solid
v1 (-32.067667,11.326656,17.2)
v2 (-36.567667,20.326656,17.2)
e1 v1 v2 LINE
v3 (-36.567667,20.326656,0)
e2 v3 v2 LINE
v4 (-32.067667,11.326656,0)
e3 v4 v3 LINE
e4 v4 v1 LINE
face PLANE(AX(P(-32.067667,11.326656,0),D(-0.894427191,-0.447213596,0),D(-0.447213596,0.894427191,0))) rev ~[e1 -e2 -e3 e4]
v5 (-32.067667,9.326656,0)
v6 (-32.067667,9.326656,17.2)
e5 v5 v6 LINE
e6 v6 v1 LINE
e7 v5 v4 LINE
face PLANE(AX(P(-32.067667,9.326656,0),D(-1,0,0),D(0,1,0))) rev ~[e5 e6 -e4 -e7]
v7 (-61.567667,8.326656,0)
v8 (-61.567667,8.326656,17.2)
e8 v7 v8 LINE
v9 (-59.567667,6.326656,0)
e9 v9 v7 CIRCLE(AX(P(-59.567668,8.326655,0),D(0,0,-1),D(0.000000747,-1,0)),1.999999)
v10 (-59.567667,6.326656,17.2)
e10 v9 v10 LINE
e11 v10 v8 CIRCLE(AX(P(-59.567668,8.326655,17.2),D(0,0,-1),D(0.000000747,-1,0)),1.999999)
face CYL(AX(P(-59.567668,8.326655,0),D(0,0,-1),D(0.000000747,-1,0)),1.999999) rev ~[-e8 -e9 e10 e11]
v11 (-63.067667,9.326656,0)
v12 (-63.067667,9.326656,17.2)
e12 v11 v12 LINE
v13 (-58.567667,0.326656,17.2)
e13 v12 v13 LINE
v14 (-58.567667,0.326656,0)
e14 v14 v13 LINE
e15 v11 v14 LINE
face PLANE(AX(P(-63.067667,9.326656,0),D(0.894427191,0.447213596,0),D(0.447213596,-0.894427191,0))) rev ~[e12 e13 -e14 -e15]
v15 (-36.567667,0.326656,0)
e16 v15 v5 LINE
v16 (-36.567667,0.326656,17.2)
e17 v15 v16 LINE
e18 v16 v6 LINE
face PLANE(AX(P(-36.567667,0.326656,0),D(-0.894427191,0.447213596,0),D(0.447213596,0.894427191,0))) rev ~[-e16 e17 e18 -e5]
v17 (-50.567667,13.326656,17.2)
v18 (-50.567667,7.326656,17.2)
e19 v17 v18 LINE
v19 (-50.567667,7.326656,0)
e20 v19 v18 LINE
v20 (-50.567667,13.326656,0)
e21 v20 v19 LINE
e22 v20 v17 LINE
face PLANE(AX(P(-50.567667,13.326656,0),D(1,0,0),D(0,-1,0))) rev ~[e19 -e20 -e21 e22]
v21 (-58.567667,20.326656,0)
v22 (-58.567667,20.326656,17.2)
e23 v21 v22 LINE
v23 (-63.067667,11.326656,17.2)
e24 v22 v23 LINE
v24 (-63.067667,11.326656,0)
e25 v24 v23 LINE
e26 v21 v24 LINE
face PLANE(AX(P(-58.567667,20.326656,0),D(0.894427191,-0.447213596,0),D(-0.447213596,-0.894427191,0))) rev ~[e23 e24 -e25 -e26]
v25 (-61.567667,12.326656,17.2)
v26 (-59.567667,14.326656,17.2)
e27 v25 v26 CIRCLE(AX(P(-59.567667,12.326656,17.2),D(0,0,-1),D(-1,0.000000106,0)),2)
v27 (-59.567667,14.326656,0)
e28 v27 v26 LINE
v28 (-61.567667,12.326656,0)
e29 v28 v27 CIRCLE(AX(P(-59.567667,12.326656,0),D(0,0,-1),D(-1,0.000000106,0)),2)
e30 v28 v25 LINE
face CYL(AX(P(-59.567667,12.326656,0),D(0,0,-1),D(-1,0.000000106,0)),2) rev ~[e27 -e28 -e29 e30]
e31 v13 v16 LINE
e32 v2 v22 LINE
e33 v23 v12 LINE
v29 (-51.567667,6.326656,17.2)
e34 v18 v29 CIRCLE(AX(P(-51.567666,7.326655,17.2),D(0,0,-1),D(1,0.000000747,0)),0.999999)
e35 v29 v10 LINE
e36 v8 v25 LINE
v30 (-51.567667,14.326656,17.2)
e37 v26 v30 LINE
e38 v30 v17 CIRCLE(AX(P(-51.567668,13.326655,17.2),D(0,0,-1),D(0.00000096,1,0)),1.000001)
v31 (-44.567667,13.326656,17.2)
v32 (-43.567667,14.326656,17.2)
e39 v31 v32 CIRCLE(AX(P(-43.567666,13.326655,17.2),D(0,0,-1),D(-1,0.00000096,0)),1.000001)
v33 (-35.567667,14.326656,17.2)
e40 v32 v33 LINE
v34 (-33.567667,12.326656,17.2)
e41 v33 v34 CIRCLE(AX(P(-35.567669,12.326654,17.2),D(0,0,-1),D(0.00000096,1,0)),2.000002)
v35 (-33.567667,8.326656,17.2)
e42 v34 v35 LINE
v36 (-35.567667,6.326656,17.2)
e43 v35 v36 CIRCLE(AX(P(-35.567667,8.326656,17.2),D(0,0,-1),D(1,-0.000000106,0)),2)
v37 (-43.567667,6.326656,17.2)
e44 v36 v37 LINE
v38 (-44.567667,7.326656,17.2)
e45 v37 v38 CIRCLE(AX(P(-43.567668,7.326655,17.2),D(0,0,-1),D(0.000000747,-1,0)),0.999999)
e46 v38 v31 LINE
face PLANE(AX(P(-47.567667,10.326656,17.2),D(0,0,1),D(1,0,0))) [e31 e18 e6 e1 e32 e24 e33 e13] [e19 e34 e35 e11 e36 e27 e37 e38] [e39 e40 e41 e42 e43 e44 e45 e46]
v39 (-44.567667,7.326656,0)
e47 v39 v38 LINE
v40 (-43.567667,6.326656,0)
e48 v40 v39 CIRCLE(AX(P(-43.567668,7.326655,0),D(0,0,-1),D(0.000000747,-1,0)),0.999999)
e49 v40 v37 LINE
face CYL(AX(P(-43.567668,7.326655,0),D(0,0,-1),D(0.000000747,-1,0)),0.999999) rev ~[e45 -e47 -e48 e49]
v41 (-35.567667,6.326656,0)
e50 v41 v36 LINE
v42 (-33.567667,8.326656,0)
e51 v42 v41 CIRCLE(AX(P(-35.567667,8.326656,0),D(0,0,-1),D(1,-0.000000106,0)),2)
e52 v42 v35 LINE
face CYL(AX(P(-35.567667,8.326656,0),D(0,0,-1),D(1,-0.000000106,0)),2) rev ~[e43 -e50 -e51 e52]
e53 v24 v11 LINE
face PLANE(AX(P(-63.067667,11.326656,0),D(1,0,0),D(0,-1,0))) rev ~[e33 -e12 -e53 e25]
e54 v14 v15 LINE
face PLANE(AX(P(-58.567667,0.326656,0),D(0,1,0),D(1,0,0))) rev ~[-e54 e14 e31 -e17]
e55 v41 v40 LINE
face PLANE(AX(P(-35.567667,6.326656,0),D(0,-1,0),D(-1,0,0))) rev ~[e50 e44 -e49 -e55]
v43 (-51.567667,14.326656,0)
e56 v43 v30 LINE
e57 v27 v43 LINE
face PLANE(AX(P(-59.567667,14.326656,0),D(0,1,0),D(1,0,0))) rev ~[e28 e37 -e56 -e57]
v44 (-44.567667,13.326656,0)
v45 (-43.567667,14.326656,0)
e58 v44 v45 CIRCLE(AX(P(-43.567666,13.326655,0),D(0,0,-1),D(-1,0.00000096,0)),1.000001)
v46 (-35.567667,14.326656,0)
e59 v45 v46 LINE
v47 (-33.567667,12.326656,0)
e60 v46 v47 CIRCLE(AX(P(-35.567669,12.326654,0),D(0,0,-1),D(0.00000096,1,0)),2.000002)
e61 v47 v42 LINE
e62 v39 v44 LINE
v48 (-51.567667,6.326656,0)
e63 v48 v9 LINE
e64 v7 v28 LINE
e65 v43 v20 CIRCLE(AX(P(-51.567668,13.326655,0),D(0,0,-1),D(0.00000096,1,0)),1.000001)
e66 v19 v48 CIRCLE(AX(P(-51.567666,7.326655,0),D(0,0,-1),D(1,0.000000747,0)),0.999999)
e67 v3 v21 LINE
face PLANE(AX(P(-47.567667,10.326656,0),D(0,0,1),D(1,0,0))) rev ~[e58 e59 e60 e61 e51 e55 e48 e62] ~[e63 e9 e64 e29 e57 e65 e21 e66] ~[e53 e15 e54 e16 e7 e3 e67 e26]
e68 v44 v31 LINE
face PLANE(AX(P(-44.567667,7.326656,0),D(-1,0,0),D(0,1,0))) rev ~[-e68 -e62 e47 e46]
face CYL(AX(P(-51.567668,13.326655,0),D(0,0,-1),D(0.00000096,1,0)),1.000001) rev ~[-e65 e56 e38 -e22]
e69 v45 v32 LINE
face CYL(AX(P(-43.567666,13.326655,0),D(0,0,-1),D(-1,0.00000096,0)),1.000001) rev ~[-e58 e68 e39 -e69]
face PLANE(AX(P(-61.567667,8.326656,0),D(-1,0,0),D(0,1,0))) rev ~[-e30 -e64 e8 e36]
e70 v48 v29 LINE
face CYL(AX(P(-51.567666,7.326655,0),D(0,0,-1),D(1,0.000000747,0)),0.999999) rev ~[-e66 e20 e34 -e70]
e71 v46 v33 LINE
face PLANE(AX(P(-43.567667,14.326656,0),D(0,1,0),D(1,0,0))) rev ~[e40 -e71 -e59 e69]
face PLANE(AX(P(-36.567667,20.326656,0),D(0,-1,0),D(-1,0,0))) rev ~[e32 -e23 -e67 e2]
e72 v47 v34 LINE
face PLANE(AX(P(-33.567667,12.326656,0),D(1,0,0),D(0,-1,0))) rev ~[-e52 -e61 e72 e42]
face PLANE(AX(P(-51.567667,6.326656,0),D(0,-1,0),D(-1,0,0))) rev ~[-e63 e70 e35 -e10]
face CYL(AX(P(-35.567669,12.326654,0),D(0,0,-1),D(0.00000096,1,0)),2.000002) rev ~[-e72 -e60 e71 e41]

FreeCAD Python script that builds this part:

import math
import FreeCAD as App
import Part
import Sketcher

V = App.Vector
Q = App.Units.Quantity

doc = App.newDocument("Part")
body = doc.addObject("PartDesign::Body", "Body")

# Sketch on XY plane
sketch1 = body.newObject("Sketcher::SketchObject", "Sketch")
sketch1.AttachmentSupport = (doc.getObject("XY_Plane"), [""])
sketch1.MapMode = "FlatFace"
sketch1.addGeometry([
    Part.LineSegment(V(-63.067667, 11.326656, 0), V(-63.067667, 9.326656, 0)),  # 0
    Part.LineSegment(V(-63.067667, 9.326656, 0), V(-58.567667, 0.326656, 0)),  # 1
    Part.LineSegment(V(-58.567667, 0.326656, 0), V(-36.567667, 0.326656, 0)),  # 2
    Part.LineSegment(V(-36.567667, 0.326656, 0), V(-32.067667, 9.326656, 0)),  # 3
    Part.LineSegment(V(-32.067667, 9.326656, 0), V(-32.067667, 11.326656, 0)),  # 4
    Part.LineSegment(V(-32.067667, 11.326656, 0), V(-36.567667, 20.326656, 0)),  # 5
    Part.LineSegment(V(-36.567667, 20.326656, 0), V(-58.567667, 20.326656, 0)),  # 6
    Part.LineSegment(V(-58.567667, 20.326656, 0), V(-63.067667, 11.326656, 0)),  # 7
    Part.ArcOfCircle(Part.Circle(V(-59.567667, 12.326656, 0), V(0, 0, 1), 2), math.radians(90.000006), math.radians(179.999994)),  # 8
    Part.LineSegment(V(-59.567667, 14.326656, 0), V(-51.567667, 14.326656, 0)),  # 9
    Part.ArcOfCircle(Part.Circle(V(-51.567668, 13.326655, 0), V(0, 0, 1), 1.000001), math.radians(0.000055), math.radians(89.999945)),  # 10
    Part.LineSegment(V(-50.567667, 13.326656, 0), V(-50.567667, 7.326656, 0)),  # 11
    Part.ArcOfCircle(Part.Circle(V(-51.567666, 7.326655, 0), V(0, 0, 1), 0.999999), math.radians(-90.000043), math.radians(0.000043)),  # 12
    Part.LineSegment(V(-51.567667, 6.326656, 0), V(-59.567667, 6.326656, 0)),  # 13
    Part.ArcOfCircle(Part.Circle(V(-59.567668, 8.326655, 0), V(0, 0, 1), 1.999999), math.radians(179.999957), math.radians(270.000043)),  # 14
    Part.LineSegment(V(-61.567667, 8.326656, 0), V(-61.567667, 12.326656, 0)),  # 15
    Part.LineSegment(V(-43.567667, 14.326656, 0), V(-35.567667, 14.326656, 0)),  # 16
    Part.ArcOfCircle(Part.Circle(V(-35.567669, 12.326654, 0), V(0, 0, 1), 2.000002), math.radians(0.000055), math.radians(89.999945)),  # 17
    Part.LineSegment(V(-33.567667, 12.326656, 0), V(-33.567667, 8.326656, 0)),  # 18
    Part.ArcOfCircle(Part.Circle(V(-35.567667, 8.326656, 0), V(0, 0, 1), 2), math.radians(-89.999994), math.radians(-0.000006)),  # 19
    Part.LineSegment(V(-35.567667, 6.326656, 0), V(-43.567667, 6.326656, 0)),  # 20
    Part.ArcOfCircle(Part.Circle(V(-43.567668, 7.326655, 0), V(0, 0, 1), 0.999999), math.radians(179.999957), math.radians(270.000043)),  # 21
    Part.LineSegment(V(-44.567667, 7.326656, 0), V(-44.567667, 13.326656, 0)),  # 22
    Part.ArcOfCircle(Part.Circle(V(-43.567666, 13.326655, 0), V(0, 0, 1), 1.000001), math.radians(90.000055), math.radians(179.999945)),  # 23
], False)
sketch1.addConstraint([
    Sketcher.Constraint("Coincident", 0, 2, 1, 1),
    Sketcher.Constraint("Coincident", 1, 2, 2, 1),
    Sketcher.Constraint("Coincident", 2, 2, 3, 1),
    Sketcher.Constraint("Coincident", 3, 2, 4, 1),
    Sketcher.Constraint("Coincident", 4, 2, 5, 1),
    Sketcher.Constraint("Coincident", 5, 2, 6, 1),
    Sketcher.Constraint("Coincident", 6, 2, 7, 1),
    Sketcher.Constraint("Coincident", 7, 2, 0, 1),
    Sketcher.Constraint("Tangent", 8, 1, 9, 1),
    Sketcher.Constraint("Tangent", 9, 2, 10, 2),
    Sketcher.Constraint("Tangent", 10, 1, 11, 1),
    Sketcher.Constraint("Tangent", 11, 2, 12, 2),
    Sketcher.Constraint("Tangent", 12, 1, 13, 1),
    Sketcher.Constraint("Tangent", 13, 2, 14, 2),
    Sketcher.Constraint("Tangent", 14, 1, 15, 1),
    Sketcher.Constraint("Tangent", 15, 2, 8, 2),
    Sketcher.Constraint("Tangent", 16, 2, 17, 2),
    Sketcher.Constraint("Tangent", 17, 1, 18, 1),
    Sketcher.Constraint("Tangent", 18, 2, 19, 2),
    Sketcher.Constraint("Tangent", 19, 1, 20, 1),
    Sketcher.Constraint("Tangent", 20, 2, 21, 2),
    Sketcher.Constraint("Tangent", 21, 1, 22, 1),
    Sketcher.Constraint("Tangent", 22, 2, 23, 2),
    Sketcher.Constraint("Tangent", 23, 1, 16, 1),
    Sketcher.Constraint("Vertical", 0),
    Sketcher.Constraint("Horizontal", 2),
    Sketcher.Constraint("Vertical", 4),
    Sketcher.Constraint("Horizontal", 6),
    Sketcher.Constraint("Horizontal", 9),
    Sketcher.Constraint("Vertical", 11),
    Sketcher.Constraint("Horizontal", 13),
    Sketcher.Constraint("Vertical", 15),
    Sketcher.Constraint("Horizontal", 16),
    Sketcher.Constraint("Vertical", 18),
    Sketcher.Constraint("Horizontal", 20),
    Sketcher.Constraint("Vertical", 22),
    Sketcher.Constraint("Equal", 10, 12),
    Sketcher.Constraint("Equal", 8, 14),
    Sketcher.Constraint("Equal", 8, 17),
    Sketcher.Constraint("Equal", 17, 19),
    Sketcher.Constraint("Equal", 12, 21),
    Sketcher.Constraint("Equal", 21, 23),
    Sketcher.Constraint("Parallel", 1, 5),
    Sketcher.Constraint("Parallel", 3, 7),
    Sketcher.Constraint("Horizontal", 8, 3, 17, 3),
    Sketcher.Constraint("Horizontal", 14, 3, 19, 3),
    Sketcher.Constraint("Horizontal", 0, 2, 3, 2),
    Sketcher.Constraint("Horizontal", 4, 2, 7, 2),
    Sketcher.Constraint("Vertical", 2, 2, 5, 2),
    Sketcher.Constraint("Vertical", 1, 2, 6, 2),
    Sketcher.Constraint("Equal", 13, 16),
    Sketcher.Constraint("Radius", 8, Q("2 mm")),
    Sketcher.Constraint("Radius", 10, Q("1.000001 mm")),
    Sketcher.Constraint("DistanceX", 2, 1, 2, 2, Q("22 mm")),
    Sketcher.Constraint("DistanceX", 9, 1, 9, 2, Q("8 mm")),
    Sketcher.Constraint("DistanceY", 0, 2, 0, 1, Q("2 mm")),
    Sketcher.Constraint("DistanceY", 11, 2, 11, 1, Q("6 mm")),
    Sketcher.Constraint("DistanceX", 10, 3, 17, 3, Q("15.999999 mm")),
    Sketcher.Constraint("DistanceY", 14, 3, 0, 2, Q("1.000001 mm")),
    Sketcher.Constraint("DistanceX", 14, 3, 1, 2, Q("1.000001 mm")),
    Sketcher.Constraint("DistanceY", 1, 2, 14, 3, Q("7.999999 mm")),
    Sketcher.Constraint("DistanceX", 0, 2, 14, 3, Q("3.499999 mm")),
    Sketcher.Constraint("DistanceX", 14, 3, -1, 1, Q("59.567668 mm")),
    Sketcher.Constraint("DistanceY", -1, 1, 8, 3, Q("12.326656 mm")),
])
pad1 = body.newObject("PartDesign::Pad", "Pad")
pad1.Profile = sketch1
pad1.Length = 17.2

doc.recompute()
